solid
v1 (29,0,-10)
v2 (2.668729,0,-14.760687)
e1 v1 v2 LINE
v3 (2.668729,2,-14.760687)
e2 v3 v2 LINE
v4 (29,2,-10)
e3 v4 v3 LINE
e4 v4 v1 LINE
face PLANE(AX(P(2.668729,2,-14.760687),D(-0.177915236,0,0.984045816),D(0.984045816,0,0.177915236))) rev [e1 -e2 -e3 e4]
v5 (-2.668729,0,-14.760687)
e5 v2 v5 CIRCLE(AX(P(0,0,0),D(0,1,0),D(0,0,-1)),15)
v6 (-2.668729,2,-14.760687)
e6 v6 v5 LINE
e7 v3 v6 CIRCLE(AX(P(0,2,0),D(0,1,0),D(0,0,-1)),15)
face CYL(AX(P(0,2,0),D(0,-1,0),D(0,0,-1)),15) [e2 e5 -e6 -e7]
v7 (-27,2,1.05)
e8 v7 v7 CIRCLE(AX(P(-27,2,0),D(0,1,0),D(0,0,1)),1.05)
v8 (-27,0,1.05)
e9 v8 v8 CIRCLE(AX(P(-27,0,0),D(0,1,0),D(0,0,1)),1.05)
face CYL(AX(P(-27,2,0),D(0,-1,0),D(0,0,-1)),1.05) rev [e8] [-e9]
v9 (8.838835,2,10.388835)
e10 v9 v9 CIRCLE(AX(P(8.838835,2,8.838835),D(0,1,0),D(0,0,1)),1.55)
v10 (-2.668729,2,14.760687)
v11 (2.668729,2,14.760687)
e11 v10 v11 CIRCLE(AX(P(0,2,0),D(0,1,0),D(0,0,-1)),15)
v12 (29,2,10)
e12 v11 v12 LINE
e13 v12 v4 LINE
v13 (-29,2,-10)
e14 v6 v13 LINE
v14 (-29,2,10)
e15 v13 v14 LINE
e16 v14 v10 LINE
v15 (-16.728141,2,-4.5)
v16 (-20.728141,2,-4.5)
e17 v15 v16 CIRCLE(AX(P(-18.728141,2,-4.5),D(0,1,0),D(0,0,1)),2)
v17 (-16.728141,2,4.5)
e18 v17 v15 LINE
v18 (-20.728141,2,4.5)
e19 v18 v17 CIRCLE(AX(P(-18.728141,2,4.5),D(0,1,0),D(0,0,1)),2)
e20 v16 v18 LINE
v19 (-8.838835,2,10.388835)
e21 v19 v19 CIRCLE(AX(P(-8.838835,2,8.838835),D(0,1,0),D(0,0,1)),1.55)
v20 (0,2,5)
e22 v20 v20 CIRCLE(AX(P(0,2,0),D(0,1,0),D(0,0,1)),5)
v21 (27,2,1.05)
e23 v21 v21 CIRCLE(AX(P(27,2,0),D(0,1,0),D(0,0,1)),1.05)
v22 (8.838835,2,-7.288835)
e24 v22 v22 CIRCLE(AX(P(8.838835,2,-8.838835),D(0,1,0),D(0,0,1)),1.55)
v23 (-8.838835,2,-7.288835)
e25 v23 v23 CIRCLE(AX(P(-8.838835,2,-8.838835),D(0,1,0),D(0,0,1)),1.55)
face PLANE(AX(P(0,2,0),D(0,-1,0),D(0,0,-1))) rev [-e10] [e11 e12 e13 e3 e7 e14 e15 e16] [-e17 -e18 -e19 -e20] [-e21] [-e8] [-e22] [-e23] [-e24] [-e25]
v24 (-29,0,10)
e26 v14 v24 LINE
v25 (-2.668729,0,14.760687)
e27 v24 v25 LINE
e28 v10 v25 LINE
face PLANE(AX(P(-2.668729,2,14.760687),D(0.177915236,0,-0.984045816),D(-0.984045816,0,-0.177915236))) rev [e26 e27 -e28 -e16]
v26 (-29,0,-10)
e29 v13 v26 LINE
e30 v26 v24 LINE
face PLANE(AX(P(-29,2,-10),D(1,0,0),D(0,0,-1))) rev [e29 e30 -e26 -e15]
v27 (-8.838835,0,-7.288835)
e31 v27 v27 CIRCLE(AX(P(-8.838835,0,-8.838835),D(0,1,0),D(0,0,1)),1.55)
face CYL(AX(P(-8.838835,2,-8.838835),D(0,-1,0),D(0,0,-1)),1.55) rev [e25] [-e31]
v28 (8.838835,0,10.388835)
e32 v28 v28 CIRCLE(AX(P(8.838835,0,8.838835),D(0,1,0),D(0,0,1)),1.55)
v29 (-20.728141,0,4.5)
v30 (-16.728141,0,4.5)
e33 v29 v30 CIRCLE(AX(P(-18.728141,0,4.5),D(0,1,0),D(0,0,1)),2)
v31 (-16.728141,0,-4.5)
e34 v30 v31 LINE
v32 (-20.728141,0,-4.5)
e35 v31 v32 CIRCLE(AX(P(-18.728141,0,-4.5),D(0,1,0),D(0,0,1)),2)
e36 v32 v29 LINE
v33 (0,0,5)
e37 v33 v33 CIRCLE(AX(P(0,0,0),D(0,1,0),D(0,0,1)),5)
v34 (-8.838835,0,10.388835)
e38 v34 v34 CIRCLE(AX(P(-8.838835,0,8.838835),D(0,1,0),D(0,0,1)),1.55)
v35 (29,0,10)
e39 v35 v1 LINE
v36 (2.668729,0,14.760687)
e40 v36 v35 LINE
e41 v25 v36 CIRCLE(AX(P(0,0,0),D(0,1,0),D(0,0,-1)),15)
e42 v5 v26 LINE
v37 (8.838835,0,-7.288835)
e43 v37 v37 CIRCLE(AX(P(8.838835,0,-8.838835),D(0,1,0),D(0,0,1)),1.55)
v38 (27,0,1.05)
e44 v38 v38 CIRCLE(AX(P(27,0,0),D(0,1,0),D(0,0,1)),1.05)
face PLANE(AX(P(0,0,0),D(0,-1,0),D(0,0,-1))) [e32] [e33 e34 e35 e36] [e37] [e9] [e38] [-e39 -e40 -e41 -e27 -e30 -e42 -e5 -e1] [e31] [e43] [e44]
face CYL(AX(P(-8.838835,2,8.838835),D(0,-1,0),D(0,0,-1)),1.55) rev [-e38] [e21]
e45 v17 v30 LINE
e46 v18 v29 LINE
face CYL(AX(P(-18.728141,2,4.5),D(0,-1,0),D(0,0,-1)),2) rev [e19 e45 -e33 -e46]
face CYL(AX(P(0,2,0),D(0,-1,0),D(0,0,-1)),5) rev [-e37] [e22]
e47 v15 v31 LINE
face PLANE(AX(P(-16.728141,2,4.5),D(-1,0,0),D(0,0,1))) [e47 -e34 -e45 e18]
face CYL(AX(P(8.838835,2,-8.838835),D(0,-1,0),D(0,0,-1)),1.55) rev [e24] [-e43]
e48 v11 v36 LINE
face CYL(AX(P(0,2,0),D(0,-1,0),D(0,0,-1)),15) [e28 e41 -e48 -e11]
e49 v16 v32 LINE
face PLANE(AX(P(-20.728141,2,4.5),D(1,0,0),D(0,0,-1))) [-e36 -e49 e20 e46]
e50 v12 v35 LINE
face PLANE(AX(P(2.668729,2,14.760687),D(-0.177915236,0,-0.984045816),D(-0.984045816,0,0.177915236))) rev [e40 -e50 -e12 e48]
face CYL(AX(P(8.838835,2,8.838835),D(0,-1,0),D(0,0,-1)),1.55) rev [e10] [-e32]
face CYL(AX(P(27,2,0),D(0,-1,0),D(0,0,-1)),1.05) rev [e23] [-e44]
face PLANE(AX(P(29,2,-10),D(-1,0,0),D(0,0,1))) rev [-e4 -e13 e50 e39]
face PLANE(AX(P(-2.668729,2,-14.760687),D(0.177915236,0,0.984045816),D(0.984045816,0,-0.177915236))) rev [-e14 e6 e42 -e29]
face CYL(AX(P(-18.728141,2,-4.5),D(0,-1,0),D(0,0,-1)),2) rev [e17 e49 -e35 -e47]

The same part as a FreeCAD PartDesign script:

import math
import FreeCAD as App
import Part
import Sketcher

V = App.Vector

doc = App.newDocument("Part")
params = doc.addObject("Spreadsheet::Sheet", "Params")
for row, (alias, value) in enumerate([
    ("sketch1_diameter", "10 mm"),
    ("sketch1_radius", "15 mm"),
    ("sketch1_radius2", "2 mm"),
    ("sketch1_diameter2", "3.1 mm"),
    ("sketch1_diameter3", "2.1 mm"),
    ("pad1_length", "2 mm"),
], start=1):
    params.set(f"A{row}", alias)
    params.set(f"B{row}", "=" + value)
    params.setAlias(f"B{row}", alias)

body = doc.addObject("PartDesign::Body", "Body")

sketch1 = doc.addObject("Sketcher::SketchObject", "Sketch")
body.addObject(sketch1)
sketch1.AttachmentSupport = (doc.XZ_Plane, [""])
sketch1.MapMode = "FlatFace"
sketch1.addGeometry([
    Part.LineSegment(V(-2.7, -14.8, 0), V(-29, -10, 0)),
    Part.LineSegment(V(-29, -10, 0), V(-29, 10, 0)),
    Part.LineSegment(V(-29, 10, 0), V(-2.7, 14.8, 0)),
    Part.ArcOfCircle(Part.Circle(V(0, 0, 0), V(0, 0, 1), 15), math.radians(80), math.radians(100)),
    Part.LineSegment(V(2.7, 14.8, 0), V(29, 10, 0)),
    Part.LineSegment(V(29, 10, 0), V(29, -10, 0)),
    Part.LineSegment(V(29, -10, 0), V(2.7, -14.8, 0)),
    Part.ArcOfCircle(Part.Circle(V(0, 0, 0), V(0, 0, 1), 15), math.radians(-100), math.radians(-80)),
    Part.Circle(V(-8.8, 8.8, 0), V(0, 0, 1), 1.6),
    Part.Circle(V(8.8, 8.8, 0), V(0, 0, 1), 1.6),
    Part.Circle(V(-27, 0, 0), V(0, 0, 1), 1.1),
    Part.ArcOfCircle(Part.Circle(V(-18.7, 4.5, 0), V(0, 0, 1), 2), math.radians(0), math.radians(180)),
    Part.LineSegment(V(-20.7, 4.5, 0), V(-20.7, -4.5, 0)),
    Part.ArcOfCircle(Part.Circle(V(-18.7, -4.5, 0), V(0, 0, 1), 2), math.radians(180), math.radians(360)),
    Part.LineSegment(V(-16.7, -4.5, 0), V(-16.7, 4.5, 0)),
    Part.Circle(V(-8.8, -8.8, 0), V(0, 0, 1), 1.6),
    Part.Circle(V(0, 0, 0), V(0, 0, 1), 5),
    Part.Circle(V(27, 0, 0), V(0, 0, 1), 1.1),
    Part.Circle(V(8.8, -8.8, 0), V(0, 0, 1), 1.6),
], False)
sketch1.addConstraint([
    Sketcher.Constraint("Coincident", 0, 2, 1, 1),
    Sketcher.Constraint("Coincident", 1, 2, 2, 1),
    Sketcher.Constraint("Tangent", 2, 2, 3, 2),
    Sketcher.Constraint("Tangent", 3, 1, 4, 1),
    Sketcher.Constraint("Coincident", 4, 2, 5, 1),
    Sketcher.Constraint("Coincident", 5, 2, 6, 1),
    Sketcher.Constraint("Tangent", 6, 2, 7, 2),
    Sketcher.Constraint("Tangent", 7, 1, 0, 1),
    Sketcher.Constraint("Tangent", 11, 2, 12, 1),
    Sketcher.Constraint("Tangent", 12, 2, 13, 1),
    Sketcher.Constraint("Tangent", 13, 2, 14, 1),
    Sketcher.Constraint("Tangent", 14, 2, 11, 1),
    Sketcher.Constraint("Vertical", 1),
    Sketcher.Constraint("Vertical", 5),
    Sketcher.Constraint("Vertical", 12),
    Sketcher.Constraint("Vertical", 14),
    Sketcher.Constraint("Coincident", 3, 3, -1, 1),
    Sketcher.Constraint("Coincident", 7, 3, -1, 1),
    Sketcher.Constraint("Coincident", 16, 3, -1, 1),
    Sketcher.Constraint("Equal", 3, 7),
    Sketcher.Constraint("Equal", 8, 9),
    Sketcher.Constraint("Equal", 9, 15),
    Sketcher.Constraint("Equal", 10, 17),
    Sketcher.Constraint("Equal", 15, 18),
    Sketcher.Constraint("Symmetric", 9, 3, 15, 3, -1, 1),
    Sketcher.Constraint("Symmetric", 10, 3, 17, 3, -1, 1),
    Sketcher.Constraint("Symmetric", 8, 3, 18, 3, -1, 1),
    Sketcher.Constraint("Symmetric", 0, 2, 4, 2, -1, 1),
    Sketcher.Constraint("Symmetric", 8, 3, 9, 3, -2),
    Sketcher.Constraint("PointOnObject", 10, 3, -1),
    Sketcher.Constraint("Parallel", 2, 6),
    Sketcher.Constraint("Horizontal", 2, 2, 3, 1),
    Sketcher.Constraint("Diameter", 16, 10.0),
    Sketcher.Constraint("Radius", 3, 15.0),
    Sketcher.Constraint("Radius", 11, 2.0),
    Sketcher.Constraint("Diameter", 8, 3.1),
    Sketcher.Constraint("Diameter", 10, 2.1),
    Sketcher.Constraint("DistanceY", 1, 1, 1, 2, 20.0),
    Sketcher.Constraint("DistanceY", 12, 2, 12, 1, 9.0),
    Sketcher.Constraint("DistanceX", 10, 3, -1, 1, 27.0),
    Sketcher.Constraint("DistanceX", 0, 2, -1, 1, 29.0),
    Sketcher.Constraint("DistanceY", -1, 1, 11, 3, 4.5),
    Sketcher.Constraint("DistanceX", 11, 3, -1, 1, 18.728141),
    Sketcher.Constraint("DistanceX", 8, 3, 9, 3, 17.67767),
    Sketcher.Constraint("DistanceY", 15, 3, 8, 3, 17.67767),
])
sketch1.setExpression("Constraints[32]", "Params.sketch1_diameter")
sketch1.setExpression("Constraints[33]", "Params.sketch1_radius")
sketch1.setExpression("Constraints[34]", "Params.sketch1_radius2")
sketch1.setExpression("Constraints[35]", "Params.sketch1_diameter2")
sketch1.setExpression("Constraints[36]", "Params.sketch1_diameter3")
pad1 = doc.addObject("PartDesign::Pad", "Pad")
body.addObject(pad1)
pad1.Profile = sketch1
pad1.setExpression("Length", "Params.pad1_length")
pad1.Reversed = True

doc.recompute()
